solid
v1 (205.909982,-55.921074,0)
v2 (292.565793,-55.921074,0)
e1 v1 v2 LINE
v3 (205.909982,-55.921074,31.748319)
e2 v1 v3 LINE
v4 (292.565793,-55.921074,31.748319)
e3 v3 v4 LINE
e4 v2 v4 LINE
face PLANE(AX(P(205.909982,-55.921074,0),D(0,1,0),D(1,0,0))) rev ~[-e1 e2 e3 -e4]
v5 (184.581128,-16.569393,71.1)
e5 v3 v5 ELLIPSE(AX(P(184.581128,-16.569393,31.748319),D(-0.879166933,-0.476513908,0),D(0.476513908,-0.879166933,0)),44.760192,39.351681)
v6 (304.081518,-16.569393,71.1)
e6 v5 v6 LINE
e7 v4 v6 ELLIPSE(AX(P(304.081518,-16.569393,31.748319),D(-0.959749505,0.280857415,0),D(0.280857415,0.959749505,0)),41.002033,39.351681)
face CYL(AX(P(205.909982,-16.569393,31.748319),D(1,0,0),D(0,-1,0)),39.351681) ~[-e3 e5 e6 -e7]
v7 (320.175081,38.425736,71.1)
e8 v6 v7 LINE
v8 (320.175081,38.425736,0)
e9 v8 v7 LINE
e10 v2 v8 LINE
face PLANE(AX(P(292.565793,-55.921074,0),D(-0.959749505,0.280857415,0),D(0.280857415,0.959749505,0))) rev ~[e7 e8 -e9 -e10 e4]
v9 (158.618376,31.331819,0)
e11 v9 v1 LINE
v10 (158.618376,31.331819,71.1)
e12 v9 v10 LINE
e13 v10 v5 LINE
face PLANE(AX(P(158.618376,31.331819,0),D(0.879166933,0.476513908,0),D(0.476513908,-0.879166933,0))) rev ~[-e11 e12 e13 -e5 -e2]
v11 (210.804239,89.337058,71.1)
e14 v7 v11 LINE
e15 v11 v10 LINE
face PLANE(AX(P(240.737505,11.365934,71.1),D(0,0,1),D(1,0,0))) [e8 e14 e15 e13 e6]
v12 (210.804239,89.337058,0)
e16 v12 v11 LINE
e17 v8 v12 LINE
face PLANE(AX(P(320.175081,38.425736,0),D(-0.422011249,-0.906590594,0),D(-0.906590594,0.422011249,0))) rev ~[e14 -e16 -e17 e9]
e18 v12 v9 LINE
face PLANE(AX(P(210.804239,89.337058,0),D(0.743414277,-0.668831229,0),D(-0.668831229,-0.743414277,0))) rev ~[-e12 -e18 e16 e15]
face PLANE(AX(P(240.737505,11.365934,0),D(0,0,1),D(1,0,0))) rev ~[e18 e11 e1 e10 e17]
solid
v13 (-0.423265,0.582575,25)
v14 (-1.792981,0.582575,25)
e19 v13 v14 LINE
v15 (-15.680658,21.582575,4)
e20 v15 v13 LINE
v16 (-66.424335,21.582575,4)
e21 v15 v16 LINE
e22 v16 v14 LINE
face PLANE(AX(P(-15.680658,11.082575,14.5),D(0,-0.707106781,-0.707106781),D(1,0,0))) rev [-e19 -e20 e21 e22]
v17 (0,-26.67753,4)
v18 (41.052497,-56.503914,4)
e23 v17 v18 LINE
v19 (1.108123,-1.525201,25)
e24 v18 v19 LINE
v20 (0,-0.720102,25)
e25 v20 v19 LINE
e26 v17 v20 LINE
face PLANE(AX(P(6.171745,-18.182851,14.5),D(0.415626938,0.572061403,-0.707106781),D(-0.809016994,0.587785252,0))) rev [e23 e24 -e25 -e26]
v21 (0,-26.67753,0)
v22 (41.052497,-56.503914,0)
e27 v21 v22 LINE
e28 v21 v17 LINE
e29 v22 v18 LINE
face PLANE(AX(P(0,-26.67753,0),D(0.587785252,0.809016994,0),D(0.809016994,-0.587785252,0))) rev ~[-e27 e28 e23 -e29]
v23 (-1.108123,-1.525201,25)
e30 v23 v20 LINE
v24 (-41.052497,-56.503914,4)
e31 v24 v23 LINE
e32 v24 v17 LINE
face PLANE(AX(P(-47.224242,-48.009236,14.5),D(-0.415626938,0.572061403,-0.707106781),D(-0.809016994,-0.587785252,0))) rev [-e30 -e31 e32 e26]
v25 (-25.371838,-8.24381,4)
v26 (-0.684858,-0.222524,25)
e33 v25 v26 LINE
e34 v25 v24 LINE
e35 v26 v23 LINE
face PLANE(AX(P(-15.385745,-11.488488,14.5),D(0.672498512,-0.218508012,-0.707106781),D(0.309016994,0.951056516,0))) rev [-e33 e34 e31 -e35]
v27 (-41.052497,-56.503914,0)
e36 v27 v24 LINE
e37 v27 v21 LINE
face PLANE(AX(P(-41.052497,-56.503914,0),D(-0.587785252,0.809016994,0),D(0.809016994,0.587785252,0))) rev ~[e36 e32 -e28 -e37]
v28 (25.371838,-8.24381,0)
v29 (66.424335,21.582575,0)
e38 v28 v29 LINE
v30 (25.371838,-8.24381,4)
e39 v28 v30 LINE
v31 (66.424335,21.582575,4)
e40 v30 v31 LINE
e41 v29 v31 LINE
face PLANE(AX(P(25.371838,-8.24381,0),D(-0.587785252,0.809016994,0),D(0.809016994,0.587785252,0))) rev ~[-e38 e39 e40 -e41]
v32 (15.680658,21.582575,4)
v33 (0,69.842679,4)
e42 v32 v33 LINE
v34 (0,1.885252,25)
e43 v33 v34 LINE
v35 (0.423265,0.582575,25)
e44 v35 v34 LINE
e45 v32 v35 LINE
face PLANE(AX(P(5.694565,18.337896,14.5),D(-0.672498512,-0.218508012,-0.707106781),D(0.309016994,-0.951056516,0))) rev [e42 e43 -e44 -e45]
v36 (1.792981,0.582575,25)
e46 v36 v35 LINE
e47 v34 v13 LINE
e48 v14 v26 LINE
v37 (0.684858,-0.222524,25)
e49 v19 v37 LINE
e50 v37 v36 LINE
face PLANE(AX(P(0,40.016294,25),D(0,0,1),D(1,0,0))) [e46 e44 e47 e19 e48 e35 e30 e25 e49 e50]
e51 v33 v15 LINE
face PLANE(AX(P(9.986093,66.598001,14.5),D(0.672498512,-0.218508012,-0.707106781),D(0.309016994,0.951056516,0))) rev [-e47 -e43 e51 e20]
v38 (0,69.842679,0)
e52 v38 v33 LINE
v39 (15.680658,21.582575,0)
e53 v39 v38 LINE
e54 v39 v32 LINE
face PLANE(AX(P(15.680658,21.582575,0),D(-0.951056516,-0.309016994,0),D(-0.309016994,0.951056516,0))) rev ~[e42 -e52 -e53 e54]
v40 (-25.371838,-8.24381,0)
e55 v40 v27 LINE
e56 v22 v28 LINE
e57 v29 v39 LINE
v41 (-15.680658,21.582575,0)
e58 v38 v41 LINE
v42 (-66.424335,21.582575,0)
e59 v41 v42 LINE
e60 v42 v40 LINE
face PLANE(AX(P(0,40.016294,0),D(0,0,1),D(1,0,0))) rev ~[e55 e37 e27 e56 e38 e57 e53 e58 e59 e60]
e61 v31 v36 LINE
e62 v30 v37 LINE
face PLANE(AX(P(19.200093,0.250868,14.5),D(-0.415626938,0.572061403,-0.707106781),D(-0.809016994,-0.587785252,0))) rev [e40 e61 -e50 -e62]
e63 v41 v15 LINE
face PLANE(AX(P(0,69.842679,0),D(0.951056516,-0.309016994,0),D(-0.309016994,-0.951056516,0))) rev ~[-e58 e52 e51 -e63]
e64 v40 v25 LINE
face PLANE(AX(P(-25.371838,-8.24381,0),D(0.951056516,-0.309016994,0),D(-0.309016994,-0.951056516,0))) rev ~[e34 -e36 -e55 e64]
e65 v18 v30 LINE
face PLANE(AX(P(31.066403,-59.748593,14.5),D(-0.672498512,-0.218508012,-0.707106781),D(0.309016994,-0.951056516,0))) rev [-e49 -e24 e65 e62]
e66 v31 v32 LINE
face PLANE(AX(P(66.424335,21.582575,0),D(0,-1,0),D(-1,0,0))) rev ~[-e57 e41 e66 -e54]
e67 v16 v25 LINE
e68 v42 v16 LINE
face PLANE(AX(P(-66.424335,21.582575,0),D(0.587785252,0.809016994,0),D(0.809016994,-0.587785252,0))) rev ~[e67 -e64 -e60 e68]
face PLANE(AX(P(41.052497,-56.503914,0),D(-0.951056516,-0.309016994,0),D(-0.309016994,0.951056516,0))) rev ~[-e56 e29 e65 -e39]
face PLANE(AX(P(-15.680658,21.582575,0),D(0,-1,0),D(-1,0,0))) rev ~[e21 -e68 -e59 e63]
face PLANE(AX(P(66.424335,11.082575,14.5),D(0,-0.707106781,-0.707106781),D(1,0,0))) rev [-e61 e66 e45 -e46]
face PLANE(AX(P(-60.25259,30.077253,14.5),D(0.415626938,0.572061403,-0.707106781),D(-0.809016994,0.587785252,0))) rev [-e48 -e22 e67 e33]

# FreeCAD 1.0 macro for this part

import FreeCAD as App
import Part
import Sketcher

V = App.Vector
Q = App.Units.Quantity


def edges_at(feature, points):
    """Names of the edges that pass closest to the given points."""
    edges = feature.Shape.Edges
    near = lambda p: min(range(len(edges)), key=lambda i: edges[i].distToShape(Part.Vertex(*p))[0])
    return sorted({f"Edge{near(p) + 1}" for p in points})

doc = App.newDocument("Part")
params = doc.addObject("Spreadsheet::Sheet", "Params")
for row, (alias, value) in enumerate([
    ("pad1_length", "25 mm"),
    ("chamfer_size", "21 mm"),
    ("pad2_length", "71.1 mm"),
    ("fillet_radius", "39.351681 mm"),
], start=1):
    params.set(f"A{row}", alias)
    params.set(f"B{row}", "=" + value)
    params.setAlias(f"B{row}", alias)

body = doc.addObject("PartDesign::Body", "Body")

# Sketch on XY plane
sketch1 = body.newObject("Sketcher::SketchObject", "Sketch")
sketch1.AttachmentSupport = (doc.getObject("XY_Plane"), [""])
sketch1.MapMode = "FlatFace"
sketch1.addGeometry(Part.LineSegment(V(0, 70, 0), V(-16, 22, 0)), False)
sketch1.addGeometry(Part.LineSegment(V(-16, 22, 0), V(-66, 22, 0)), False)
sketch1.addGeometry(Part.LineSegment(V(-66, 22, 0), V(-25, -8, 0)), False)
sketch1.addGeometry(Part.LineSegment(V(-25, -8, 0), V(-41, -57, 0)), False)
sketch1.addGeometry(Part.LineSegment(V(-41, -57, 0), V(0, -27, 0)), False)
sketch1.addGeometry(Part.LineSegment(V(0, -27, 0), V(41, -57, 0)), False)
sketch1.addGeometry(Part.LineSegment(V(41, -57, 0), V(25, -8, 0)), False)
sketch1.addGeometry(Part.LineSegment(V(25, -8, 0), V(66, 22, 0)), False)
sketch1.addGeometry(Part.LineSegment(V(66, 22, 0), V(16, 22, 0)), False)
sketch1.addGeometry(Part.LineSegment(V(16, 22, 0), V(0, 70, 0)), False)
sketch1.addConstraint(Sketcher.Constraint("Coincident", 0, 2, 1, 1))
sketch1.addConstraint(Sketcher.Constraint("Coincident", 1, 2, 2, 1))
sketch1.addConstraint(Sketcher.Constraint("Coincident", 2, 2, 3, 1))
sketch1.addConstraint(Sketcher.Constraint("Coincident", 3, 2, 4, 1))
sketch1.addConstraint(Sketcher.Constraint("Coincident", 4, 2, 5, 1))
sketch1.addConstraint(Sketcher.Constraint("Coincident", 5, 2, 6, 1))
sketch1.addConstraint(Sketcher.Constraint("Coincident", 6, 2, 7, 1))
sketch1.addConstraint(Sketcher.Constraint("Coincident", 7, 2, 8, 1))
sketch1.addConstraint(Sketcher.Constraint("Coincident", 8, 2, 9, 1))
sketch1.addConstraint(Sketcher.Constraint("Coincident", 9, 2, 0, 1))
sketch1.addConstraint(Sketcher.Constraint("Horizontal", 1))
sketch1.addConstraint(Sketcher.Constraint("Horizontal", 8))
sketch1.addConstraint(Sketcher.Constraint("Symmetric", 3, 2, 5, 2, -2))
sketch1.addConstraint(Sketcher.Constraint("Symmetric", 2, 2, 6, 2, -2))
sketch1.addConstraint(Sketcher.Constraint("Symmetric", 1, 2, 7, 2, -2))
sketch1.addConstraint(Sketcher.Constraint("PointOnObject", 4, 2, -2))
sketch1.addConstraint(Sketcher.Constraint("PointOnObject", 9, 2, -2))
sketch1.addConstraint(Sketcher.Constraint("Parallel", 0, 3))
sketch1.addConstraint(Sketcher.Constraint("Parallel", 2, 5))
sketch1.addConstraint(Sketcher.Constraint("Parallel", 6, 9))
sketch1.addConstraint(Sketcher.Constraint("Equal", 0, 2))
sketch1.addConstraint(Sketcher.Constraint("Equal", 2, 3))
sketch1.addConstraint(Sketcher.Constraint("Equal", 3, 4))
sketch1.addConstraint(Sketcher.Constraint("Angle", 0, Q("-108 deg")))
sketch1.addConstraint(Sketcher.Constraint("Angle", 2, Q("-36 deg")))
sketch1.addConstraint(Sketcher.Constraint("DistanceX", 1, 2, 1, 1, Q("50.743677 mm")))
sketch1.addConstraint(Sketcher.Constraint("DistanceY", 2, 2, -1, 1, Q("8.24381 mm")))
pad1 = body.newObject("PartDesign::Pad", "Pad")
pad1.Profile = sketch1
pad1.setExpression("Length", "Params.pad1_length")
doc.recompute()

chamfer = body.newObject("PartDesign::Chamfer", "Chamfer")
chamfer.Base = (pad1, edges_at(pad1, [
    (-7.84, 45.713, 25),
    (-41.052, 21.583, 25),
    (-45.898, 6.669, 25),
    (-33.212, -32.374, 25),
    (-20.526, -41.591, 25),
    (20.526, -41.591, 25),
    (33.212, -32.374, 25),
    (45.898, 6.669, 25),
    (41.052, 21.583, 25),
    (7.84, 45.713, 25),
]))
chamfer.setExpression("Size", "Params.chamfer_size")
body2 = doc.addObject("PartDesign::Body", "Body001")

# Sketch on XY plane
sketch2 = body2.newObject("Sketcher::SketchObject", "Sketch001")
sketch2.AttachmentSupport = (doc.getObject("XY_Plane001"), [""])
sketch2.MapMode = "FlatFace"
sketch2.addGeometry(Part.LineSegment(V(211, 89, 0), V(159, 31, 0)), False)
sketch2.addGeometry(Part.LineSegment(V(159, 31, 0), V(206, -56, 0)), False)
sketch2.addGeometry(Part.LineSegment(V(206, -56, 0), V(293, -56, 0)), False)
sketch2.addGeometry(Part.LineSegment(V(293, -56, 0), V(320, 38, 0)), False)
sketch2.addGeometry(Part.LineSegment(V(320, 38, 0), V(211, 89, 0)), False)
sketch2.addConstraint(Sketcher.Constraint("Coincident", 0, 2, 1, 1))
sketch2.addConstraint(Sketcher.Constraint("Coincident", 1, 2, 2, 1))
sketch2.addConstraint(Sketcher.Constraint("Coincident", 2, 2, 3, 1))
sketch2.addConstraint(Sketcher.Constraint("Coincident", 3, 2, 4, 1))
sketch2.addConstraint(Sketcher.Constraint("Coincident", 4, 2, 0, 1))
sketch2.addConstraint(Sketcher.Constraint("Horizontal", 2))
sketch2.addConstraint(Sketcher.Constraint("DistanceX", 2, 1, 2, 2, Q("86.65581 mm")))
sketch2.addConstraint(Sketcher.Constraint("DistanceX", 1, 2, 3, 2, Q("114.265099 mm")))
sketch2.addConstraint(Sketcher.Constraint("Distance", 0, Q("78.025458 mm")))
sketch2.addConstraint(Sketcher.Constraint("DistanceY", -1, 1, 0, 2, Q("31.331819 mm")))
sketch2.addConstraint(Sketcher.Constraint("DistanceX", -1, 1, 3, 2, Q("320.175081 mm")))
sketch2.addConstraint(Sketcher.Constraint("DistanceX", -1, 1, 4, 2, Q("210.804239 mm")))
sketch2.addConstraint(Sketcher.Constraint("DistanceY", -1, 1, 4, 2, Q("89.337058 mm")))
sketch2.addConstraint(Sketcher.Constraint("DistanceY", 2, 2, 3, 2, Q("94.34681 mm")))
sketch2.addConstraint(Sketcher.Constraint("Distance", 1, Q("99.244966 mm")))
pad2 = body2.newObject("PartDesign::Pad", "Pad001")
pad2.Profile = sketch2
pad2.setExpression("Length", "Params.pad2_length")
doc.recompute()

fillet = body2.newObject("PartDesign::Fillet", "Fillet")
fillet.Base = (pad2, edges_at(pad2, [(249.238, -55.921, 71.1)]))
fillet.setExpression("Radius", "Params.fillet_radius")

doc.recompute()
